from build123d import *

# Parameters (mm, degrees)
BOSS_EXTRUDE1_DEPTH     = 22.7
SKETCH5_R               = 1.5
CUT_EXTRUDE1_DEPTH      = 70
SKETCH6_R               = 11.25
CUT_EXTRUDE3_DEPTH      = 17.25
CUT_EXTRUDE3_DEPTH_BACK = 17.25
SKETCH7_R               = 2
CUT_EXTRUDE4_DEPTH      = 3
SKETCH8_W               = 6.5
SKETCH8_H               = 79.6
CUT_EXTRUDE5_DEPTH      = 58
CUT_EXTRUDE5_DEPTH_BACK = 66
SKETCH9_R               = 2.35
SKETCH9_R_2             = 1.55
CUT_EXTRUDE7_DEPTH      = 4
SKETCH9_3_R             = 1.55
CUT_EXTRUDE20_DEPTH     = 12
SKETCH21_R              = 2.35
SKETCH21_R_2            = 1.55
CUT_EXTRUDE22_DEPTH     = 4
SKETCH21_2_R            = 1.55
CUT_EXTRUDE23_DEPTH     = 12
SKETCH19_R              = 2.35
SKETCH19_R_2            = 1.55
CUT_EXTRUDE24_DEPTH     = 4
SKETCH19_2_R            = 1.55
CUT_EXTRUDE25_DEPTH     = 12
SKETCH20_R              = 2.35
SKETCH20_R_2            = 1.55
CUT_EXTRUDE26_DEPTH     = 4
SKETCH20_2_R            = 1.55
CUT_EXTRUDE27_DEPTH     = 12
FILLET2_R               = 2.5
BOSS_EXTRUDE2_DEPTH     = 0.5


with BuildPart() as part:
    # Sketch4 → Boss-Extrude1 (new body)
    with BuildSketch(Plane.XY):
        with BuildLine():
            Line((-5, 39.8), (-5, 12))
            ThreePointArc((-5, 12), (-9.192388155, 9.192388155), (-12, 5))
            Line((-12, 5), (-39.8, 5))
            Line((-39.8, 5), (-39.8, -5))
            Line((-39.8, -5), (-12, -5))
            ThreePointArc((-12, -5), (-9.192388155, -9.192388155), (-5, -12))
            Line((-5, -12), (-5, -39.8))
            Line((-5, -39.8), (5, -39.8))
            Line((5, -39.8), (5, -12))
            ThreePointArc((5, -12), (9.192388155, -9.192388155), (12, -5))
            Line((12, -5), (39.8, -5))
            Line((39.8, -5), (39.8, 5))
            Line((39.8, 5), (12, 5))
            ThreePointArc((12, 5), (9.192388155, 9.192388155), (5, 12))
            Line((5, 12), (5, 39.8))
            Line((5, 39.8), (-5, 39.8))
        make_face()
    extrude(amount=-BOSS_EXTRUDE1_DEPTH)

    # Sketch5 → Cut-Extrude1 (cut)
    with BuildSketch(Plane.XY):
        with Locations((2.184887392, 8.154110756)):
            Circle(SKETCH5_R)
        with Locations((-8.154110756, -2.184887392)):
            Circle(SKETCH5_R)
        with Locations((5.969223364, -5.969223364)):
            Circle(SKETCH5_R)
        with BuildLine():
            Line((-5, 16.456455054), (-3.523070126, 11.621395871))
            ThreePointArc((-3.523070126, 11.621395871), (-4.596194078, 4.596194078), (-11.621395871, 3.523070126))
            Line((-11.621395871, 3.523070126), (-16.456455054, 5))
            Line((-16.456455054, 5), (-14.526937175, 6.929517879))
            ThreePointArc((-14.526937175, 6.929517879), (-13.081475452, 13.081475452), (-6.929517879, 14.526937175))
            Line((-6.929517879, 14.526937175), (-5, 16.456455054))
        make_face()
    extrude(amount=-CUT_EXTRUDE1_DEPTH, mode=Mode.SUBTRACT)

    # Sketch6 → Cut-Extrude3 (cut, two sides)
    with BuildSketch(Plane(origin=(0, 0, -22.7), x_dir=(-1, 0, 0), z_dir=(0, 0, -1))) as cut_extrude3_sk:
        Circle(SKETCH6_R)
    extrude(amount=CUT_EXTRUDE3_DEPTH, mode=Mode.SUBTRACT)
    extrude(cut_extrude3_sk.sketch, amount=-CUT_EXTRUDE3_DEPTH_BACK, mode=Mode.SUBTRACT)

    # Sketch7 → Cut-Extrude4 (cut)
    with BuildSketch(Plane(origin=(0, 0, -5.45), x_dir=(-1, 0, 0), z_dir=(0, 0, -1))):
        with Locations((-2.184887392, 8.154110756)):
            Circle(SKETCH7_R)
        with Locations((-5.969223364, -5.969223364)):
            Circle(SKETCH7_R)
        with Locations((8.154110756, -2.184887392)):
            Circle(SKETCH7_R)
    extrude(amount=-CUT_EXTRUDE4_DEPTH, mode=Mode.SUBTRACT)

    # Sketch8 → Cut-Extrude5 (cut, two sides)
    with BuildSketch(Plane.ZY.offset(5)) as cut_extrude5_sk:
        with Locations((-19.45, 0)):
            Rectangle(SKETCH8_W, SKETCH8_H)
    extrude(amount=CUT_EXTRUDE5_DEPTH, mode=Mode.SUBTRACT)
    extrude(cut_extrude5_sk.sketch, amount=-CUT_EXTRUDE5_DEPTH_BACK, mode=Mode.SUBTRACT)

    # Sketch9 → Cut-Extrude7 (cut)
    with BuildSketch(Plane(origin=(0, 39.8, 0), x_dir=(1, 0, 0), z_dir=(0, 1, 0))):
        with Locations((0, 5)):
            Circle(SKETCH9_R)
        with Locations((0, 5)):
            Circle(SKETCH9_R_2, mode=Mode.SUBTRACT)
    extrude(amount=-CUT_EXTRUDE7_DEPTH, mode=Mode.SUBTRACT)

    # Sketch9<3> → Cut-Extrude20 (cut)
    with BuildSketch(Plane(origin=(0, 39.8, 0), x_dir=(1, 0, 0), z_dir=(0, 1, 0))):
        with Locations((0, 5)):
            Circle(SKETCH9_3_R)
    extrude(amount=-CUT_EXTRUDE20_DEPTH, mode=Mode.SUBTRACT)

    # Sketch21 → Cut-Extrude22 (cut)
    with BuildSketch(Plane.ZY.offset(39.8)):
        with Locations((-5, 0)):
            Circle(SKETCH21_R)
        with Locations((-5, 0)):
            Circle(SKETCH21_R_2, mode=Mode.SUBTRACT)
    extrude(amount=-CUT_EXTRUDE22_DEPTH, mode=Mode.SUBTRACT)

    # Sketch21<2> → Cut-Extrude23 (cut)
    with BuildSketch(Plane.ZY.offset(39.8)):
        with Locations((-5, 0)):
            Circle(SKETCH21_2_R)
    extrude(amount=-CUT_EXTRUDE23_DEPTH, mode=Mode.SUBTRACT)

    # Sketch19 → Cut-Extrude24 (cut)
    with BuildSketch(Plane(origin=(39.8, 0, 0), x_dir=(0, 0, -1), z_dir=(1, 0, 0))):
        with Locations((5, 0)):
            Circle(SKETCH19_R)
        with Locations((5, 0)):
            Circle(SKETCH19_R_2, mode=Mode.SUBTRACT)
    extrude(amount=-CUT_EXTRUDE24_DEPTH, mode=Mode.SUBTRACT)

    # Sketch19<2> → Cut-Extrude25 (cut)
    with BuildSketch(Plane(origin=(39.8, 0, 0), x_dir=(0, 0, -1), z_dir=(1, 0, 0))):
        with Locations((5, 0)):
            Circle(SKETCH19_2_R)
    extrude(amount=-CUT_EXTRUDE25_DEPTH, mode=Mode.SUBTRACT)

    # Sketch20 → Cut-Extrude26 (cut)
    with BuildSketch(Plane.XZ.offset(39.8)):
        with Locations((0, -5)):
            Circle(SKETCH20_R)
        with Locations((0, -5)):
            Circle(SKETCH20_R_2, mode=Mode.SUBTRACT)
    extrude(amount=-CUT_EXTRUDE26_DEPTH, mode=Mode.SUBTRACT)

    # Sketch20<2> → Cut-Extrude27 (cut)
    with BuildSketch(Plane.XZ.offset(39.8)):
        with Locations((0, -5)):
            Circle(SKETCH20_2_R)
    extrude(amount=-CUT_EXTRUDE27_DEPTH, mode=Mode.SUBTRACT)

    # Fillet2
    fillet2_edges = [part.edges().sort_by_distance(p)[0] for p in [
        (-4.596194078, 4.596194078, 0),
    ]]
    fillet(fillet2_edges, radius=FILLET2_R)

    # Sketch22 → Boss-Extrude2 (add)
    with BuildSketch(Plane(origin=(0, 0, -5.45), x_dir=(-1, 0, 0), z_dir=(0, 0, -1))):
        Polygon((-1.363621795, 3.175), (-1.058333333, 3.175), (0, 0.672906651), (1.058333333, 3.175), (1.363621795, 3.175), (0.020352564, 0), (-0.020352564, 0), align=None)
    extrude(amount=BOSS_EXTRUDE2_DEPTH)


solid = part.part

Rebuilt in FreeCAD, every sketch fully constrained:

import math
import FreeCAD as App
import Part
import Sketcher

V = App.Vector
Q = App.Units.Quantity


def edges_at(feature, points):
    """Names of the edges that pass closest to the given points."""
    edges = feature.Shape.Edges
    near = lambda p: min(range(len(edges)), key=lambda i: edges[i].distToShape(Part.Vertex(*p))[0])
    return sorted({f"Edge{near(p) + 1}" for p in points})


def add_polygon(sketch, points):
    """Adds a closed chain of lines whose ends are joined by coincident constraints."""
    first, n = sketch.GeometryCount, len(points)
    for a, b in zip(points, points[1:] + points[:1]):
        sketch.addGeometry(Part.LineSegment(App.Vector(*a, 0), App.Vector(*b, 0)), False)
    for i in range(n):
        sketch.addConstraint(Sketcher.Constraint("Coincident", first + i, 2, first + (i + 1) % n, 1))

doc = App.newDocument("Part")
params = doc.addObject("Spreadsheet::Sheet", "Params")
for row, (alias, value) in enumerate([
    ("sketch1_radius", "13 mm"),
    ("sketch1_width", "10 mm"),
    ("sketch1_width2", "27.8 mm"),
    ("pad1_length", "22.7 mm"),
    ("sketch2_diameter", "3 mm"),
    ("sketch2_radius", "6 mm"),
    ("pocket1_length", "70 mm"),
    ("sketch3_diameter", "22.5 mm"),
    ("pocket2_length", "17.25 mm"),
    ("pocket2_length2", "17.25 mm"),
    ("sketch4_diameter", "4 mm"),
    ("pocket3_length", "3 mm"),
    ("sketch5_width", "79.6 mm"),
    ("sketch5_height", "6.5 mm"),
    ("sketch6_diameter", "4.7 mm"),
    ("sketch6_diameter2", "3.1 mm"),
    ("pocket5_length", "4 mm"),
    ("sketch7_diameter", "3.1 mm"),
    ("pocket6_length", "12 mm"),
    ("sketch8_diameter", "4.7 mm"),
    ("sketch8_diameter2", "3.1 mm"),
    ("pocket7_length", "4 mm"),
    ("sketch9_diameter", "3.1 mm"),
    ("pocket8_length", "12 mm"),
    ("sketch10_diameter", "4.7 mm"),
    ("sketch10_diameter2", "3.1 mm"),
    ("pocket9_length", "4 mm"),
    ("sketch11_diameter", "3.1 mm"),
    ("pocket10_length", "12 mm"),
    ("sketch12_diameter", "4.7 mm"),
    ("sketch12_diameter2", "3.1 mm"),
    ("pocket11_length", "4 mm"),
    ("sketch13_diameter", "3.1 mm"),
    ("pocket12_length", "12 mm"),
    ("fillet_radius", "2.5 mm"),
    ("pad2_length", "0.5 mm"),
], start=1):
    params.set(f"A{row}", alias)
    params.set(f"B{row}", "=" + value)
    params.setAlias(f"B{row}", alias)

body = doc.addObject("PartDesign::Body", "Body")

sketch1 = body.newObject("Sketcher::SketchObject", "Sketch")
sketch1.AttachmentSupport = (doc.getObject("XY_Plane"), [""])
sketch1.MapMode = "FlatFace"
sketch1.addGeometry([
    Part.LineSegment(V(-5, 39.8, 0), V(-5, 12, 0)),
    Part.ArcOfCircle(Part.Circle(V(0, 0, 0), V(0, 0, 1), 13), math.radians(112.619865), math.radians(157.380135)),
    Part.LineSegment(V(-12, 5, 0), V(-39.8, 5, 0)),
    Part.LineSegment(V(-39.8, 5, 0), V(-39.8, -5, 0)),
    Part.LineSegment(V(-39.8, -5, 0), V(-12, -5, 0)),
    Part.ArcOfCircle(Part.Circle(V(0, 0, 0), V(0, 0, 1), 13), math.radians(-157.380135), math.radians(-112.619865)),
    Part.LineSegment(V(-5, -12, 0), V(-5, -39.8, 0)),
    Part.LineSegment(V(-5, -39.8, 0), V(5, -39.8, 0)),
    Part.LineSegment(V(5, -39.8, 0), V(5, -12, 0)),
    Part.ArcOfCircle(Part.Circle(V(0, 0, 0), V(0, 0, 1), 13), math.radians(-67.380135), math.radians(-22.619865)),
    Part.LineSegment(V(12, -5, 0), V(39.8, -5, 0)),
    Part.LineSegment(V(39.8, -5, 0), V(39.8, 5, 0)),
    Part.LineSegment(V(39.8, 5, 0), V(12, 5, 0)),
    Part.ArcOfCircle(Part.Circle(V(0, 0, 0), V(0, 0, 1), 13), math.radians(22.619865), math.radians(67.380135)),
    Part.LineSegment(V(5, 12, 0), V(5, 39.8, 0)),
    Part.LineSegment(V(5, 39.8, 0), V(-5, 39.8, 0)),
], False)
sketch1.addConstraint([
    Sketcher.Constraint("Coincident", 0, 2, 1, 1),
    Sketcher.Constraint("Coincident", 1, 2, 2, 1),
    Sketcher.Constraint("Coincident", 2, 2, 3, 1),
    Sketcher.Constraint("Coincident", 3, 2, 4, 1),
    Sketcher.Constraint("Coincident", 4, 2, 5, 1),
    Sketcher.Constraint("Coincident", 5, 2, 6, 1),
    Sketcher.Constraint("Coincident", 6, 2, 7, 1),
    Sketcher.Constraint("Coincident", 7, 2, 8, 1),
    Sketcher.Constraint("Coincident", 8, 2, 9, 1),
    Sketcher.Constraint("Coincident", 9, 2, 10, 1),
    Sketcher.Constraint("Coincident", 10, 2, 11, 1),
    Sketcher.Constraint("Coincident", 11, 2, 12, 1),
    Sketcher.Constraint("Coincident", 12, 2, 13, 1),
    Sketcher.Constraint("Coincident", 13, 2, 14, 1),
    Sketcher.Constraint("Coincident", 14, 2, 15, 1),
    Sketcher.Constraint("Coincident", 15, 2, 0, 1),
    Sketcher.Constraint("Vertical", 0),
    Sketcher.Constraint("Horizontal", 2),
    Sketcher.Constraint("Vertical", 3),
    Sketcher.Constraint("Horizontal", 4),
    Sketcher.Constraint("Vertical", 6),
    Sketcher.Constraint("Horizontal", 7),
    Sketcher.Constraint("Vertical", 8),
    Sketcher.Constraint("Horizontal", 10),
    Sketcher.Constraint("Vertical", 11),
    Sketcher.Constraint("Horizontal", 12),
    Sketcher.Constraint("Vertical", 14),
    Sketcher.Constraint("Horizontal", 15),
    Sketcher.Constraint("Coincident", 1, 3, -1, 1),
    Sketcher.Constraint("Coincident", 5, 3, -1, 1),
    Sketcher.Constraint("Coincident", 9, 3, -1, 1),
    Sketcher.Constraint("Coincident", 13, 3, -1, 1),
    Sketcher.Constraint("Equal", 1, 5),
    Sketcher.Constraint("Equal", 5, 9),
    Sketcher.Constraint("Equal", 9, 13),
    Sketcher.Constraint("Symmetric", 2, 2, 10, 2, -1, 1),
    Sketcher.Constraint("Symmetric", 6, 2, 14, 2, -1, 1),
    Sketcher.Constraint("Horizontal", 5, 2, 8, 2),
    Sketcher.Constraint("Horizontal", 4, 2, 9, 2),
    Sketcher.Constraint("Horizontal", 2, 2, 11, 2),
    Sketcher.Constraint("Horizontal", 0, 2, 13, 2),
    Sketcher.Constraint("Equal", 12, 0),
    Sketcher.Constraint("Equal", 15, 3),
    Sketcher.Constraint("Radius", 1, Q("13 mm")),
    Sketcher.Constraint("DistanceX", 7, 1, 7, 2, Q("10 mm")),
    Sketcher.Constraint("DistanceX", 2, 2, 2, 1, Q("27.8 mm")),
])
sketch1.setExpression("Constraints[43]", "Params.sketch1_radius")
sketch1.setExpression("Constraints[44]", "Params.sketch1_width")
sketch1.setExpression("Constraints[45]", "Params.sketch1_width2")
pad1 = body.newObject("PartDesign::Pad", "Pad")
pad1.Profile = sketch1
pad1.setExpression("Length", "Params.pad1_length")
pad1.Reversed = True

sketch2 = body.newObject("Sketcher::SketchObject", "Sketch001")
sketch2.AttachmentSupport = (doc.getObject("XY_Plane"), [""])
sketch2.MapMode = "FlatFace"
sketch2.addGeometry([
    Part.Circle(V(2.184887, 8.154111, 0), V(0, 0, 1), 1.5),
    Part.Circle(V(-8.154111, -2.184887, 0), V(0, 0, 1), 1.5),
    Part.Circle(V(5.969223, -5.969223, 0), V(0, 0, 1), 1.5),
    Part.LineSegment(V(-3.52307, 11.621396, 0), V(-5, 16.456455, 0)),
    Part.LineSegment(V(-5, 16.456455, 0), V(-6.929518, 14.526937, 0)),
    Part.ArcOfCircle(Part.Circle(V(-8.838835, 8.838835, 0), V(0, 0, 1), 6), math.radians(71.444719), math.radians(198.555281)),
    Part.LineSegment(V(-14.526937, 6.929518, 0), V(-16.456455, 5, 0)),
    Part.LineSegment(V(-16.456455, 5, 0), V(-11.621396, 3.52307, 0)),
    Part.ArcOfCircle(Part.Circle(V(-8.838835, 8.838835, 0), V(0, 0, 1), 6), math.radians(-117.630013), math.radians(27.630013)),
], False)
sketch2.addConstraint([
    Sketcher.Constraint("Coincident", 3, 2, 4, 1),
    Sketcher.Constraint("Coincident", 4, 2, 5, 1),
    Sketcher.Constraint("Coincident", 5, 2, 6, 1),
    Sketcher.Constraint("Coincident", 6, 2, 7, 1),
    Sketcher.Constraint("Coincident", 7, 2, 8, 1),
    Sketcher.Constraint("Coincident", 8, 2, 3, 1),
    Sketcher.Constraint("Coincident", 8, 3, 5, 3),
    Sketcher.Constraint("Equal", 0, 1),
    Sketcher.Constraint("Equal", 1, 2),
    Sketcher.Constraint("Equal", 5, 8),
    Sketcher.Constraint("Parallel", 4, 6),
    Sketcher.Constraint("Equal", 4, 6),
    Sketcher.Constraint("Equal", 3, 7),
    Sketcher.Constraint("Diameter", 0, Q("3 mm")),
    Sketcher.Constraint("Radius", 5, Q("6 mm")),
    Sketcher.Constraint("Angle", 4, Q("-135 deg")),
    Sketcher.Constraint("DistanceX", 3, 2, -1, 1, Q("5 mm")),
    Sketcher.Constraint("DistanceY", -1, 1, 6, 2, Q("5 mm")),
    Sketcher.Constraint("DistanceX", 1, 3, 0, 3, Q("10.338998 mm")),
    Sketcher.Constraint("DistanceY", 1, 3, 0, 3, Q("10.338998 mm")),
    Sketcher.Constraint("Distance", 4, Q("2.72875 mm")),
    Sketcher.Constraint("DistanceY", -1, 1, 0, 3, Q("8.154111 mm")),
    Sketcher.Constraint("DistanceX", 1, 3, -1, 1, Q("8.154111 mm")),
    Sketcher.Constraint("DistanceY", -1, 1, 7, 2, Q("3.52307 mm")),
    Sketcher.Constraint("DistanceX", 8, 2, -1, 1, Q("3.52307 mm")),
    Sketcher.Constraint("DistanceX", 5, 3, 2, 3, Q("14.808058 mm")),
    Sketcher.Constraint("DistanceY", 2, 3, 5, 3, Q("14.808058 mm")),
    Sketcher.Constraint("DistanceY", 8, 3, 3, 2, Q("7.61762 mm")),
])
sketch2.setExpression("Constraints[13]", "Params.sketch2_diameter")
sketch2.setExpression("Constraints[14]", "Params.sketch2_radius")
pocket1 = body.newObject("PartDesign::Pocket", "Pocket")
pocket1.Profile = sketch2
pocket1.setExpression("Length", "Params.pocket1_length")

sketch3 = body.newObject("Sketcher::SketchObject", "Sketch002")
sketch3.AttachmentSupport = (doc.getObject("XY_Plane"), [""])
sketch3.MapMode = "FlatFace"
sketch3.AttachmentOffset = App.Placement(V(0, 0, -22.7), App.Rotation())
sketch3.addGeometry(Part.Circle(V(0, 0, 0), V(0, 0, 1), 11.25), False)
sketch3.addConstraint([
    Sketcher.Constraint("Coincident", 0, 3, -1, 1),
    Sketcher.Constraint("Diameter", 0, Q("22.5 mm")),
])
sketch3.setExpression("Constraints[1]", "Params.sketch3_diameter")
pocket2 = body.newObject("PartDesign::Pocket", "Pocket001")
pocket2.Profile = sketch3
pocket2.Type = "TwoLengths"
pocket2.setExpression("Length", "Params.pocket2_length")
pocket2.setExpression("Length2", "Params.pocket2_length2")

sketch4 = body.newObject("Sketcher::SketchObject", "Sketch003")
sketch4.AttachmentSupport = (doc.getObject("XY_Plane"), [""])
sketch4.MapMode = "FlatFace"
sketch4.AttachmentOffset = App.Placement(V(0, 0, -5.45), App.Rotation())
sketch4.addGeometry([
    Part.Circle(V(2.184887, 8.154111, 0), V(0, 0, 1), 2),
    Part.Circle(V(5.969223, -5.969223, 0), V(0, 0, 1), 2),
    Part.Circle(V(-8.154111, -2.184887, 0), V(0, 0, 1), 2),
], False)
sketch4.addConstraint([
    Sketcher.Constraint("Equal", 0, 1),
    Sketcher.Constraint("Equal", 1, 2),
    Sketcher.Constraint("Diameter", 0, Q("4 mm")),
    Sketcher.Constraint("DistanceX", 2, 3, 0, 3, Q("10.338998 mm")),
    Sketcher.Constraint("DistanceY", 2, 3, 0, 3, Q("10.338998 mm")),
    Sketcher.Constraint("DistanceY", -1, 1, 0, 3, Q("8.154111 mm")),
    Sketcher.Constraint("DistanceX", 2, 3, -1, 1, Q("8.154111 mm")),
    Sketcher.Constraint("DistanceX", -1, 1, 1, 3, Q("5.969223 mm")),
    Sketcher.Constraint("DistanceY", 1, 3, -1, 1, Q("5.969223 mm")),
])
sketch4.setExpression("Constraints[2]", "Params.sketch4_diameter")
pocket3 = body.newObject("PartDesign::Pocket", "Pocket002")
pocket3.Profile = sketch4
pocket3.setExpression("Length", "Params.pocket3_length")
pocket3.Reversed = True

sketch5 = body.newObject("Sketcher::SketchObject", "Sketch004")
sketch5.AttachmentSupport = (doc.getObject("YZ_Plane"), [""])
sketch5.MapMode = "FlatFace"
sketch5.AttachmentOffset = App.Placement(V(0, 0, -5), App.Rotation())
add_polygon(sketch5, [(39.8, -22.7), (-39.8, -22.7), (-39.8, -16.2), (39.8, -16.2)])
sketch5.addConstraint([
    Sketcher.Constraint("Horizontal", 0),
    Sketcher.Constraint("Vertical", 1),
    Sketcher.Constraint("Horizontal", 2),
    Sketcher.Constraint("Vertical", 3),
    Sketcher.Constraint("DistanceX", 0, 2, 0, 1, Q("79.6 mm")),
    Sketcher.Constraint("DistanceY", 1, 1, 1, 2, Q("6.5 mm")),
    Sketcher.Constraint("DistanceX", 0, 2, -1, 1, Q("39.8 mm")),
    Sketcher.Constraint("DistanceY", 0, 2, -1, 1, Q("22.7 mm")),
])
sketch5.setExpression("Constraints[8]", "Params.sketch5_width")
sketch5.setExpression("Constraints[9]", "Params.sketch5_height")
pocket4 = body.newObject("PartDesign::Pocket", "Pocket003")
pocket4.Profile = sketch5
pocket4.Type = "ThroughAll"
pocket4.Midplane = True

sketch6 = body.newObject("Sketcher::SketchObject", "Sketch005")
sketch6.AttachmentSupport = (doc.getObject("XZ_Plane"), [""])
sketch6.MapMode = "FlatFace"
sketch6.AttachmentOffset = App.Placement(V(0, 0, -39.8), App.Rotation())
sketch6.addGeometry([
    Part.Circle(V(0, -5, 0), V(0, 0, 1), 2.35),
    Part.Circle(V(0, -5, 0), V(0, 0, 1), 1.55),
], False)
sketch6.addConstraint([
    Sketcher.Constraint("Coincident", 1, 3, 0, 3),
    Sketcher.Constraint("PointOnObject", 0, 3, -2),
    Sketcher.Constraint("Diameter", 0, Q("4.7 mm")),
    Sketcher.Constraint("Diameter", 1, Q("3.1 mm")),
    Sketcher.Constraint("DistanceY", 0, 3, -1, 1, Q("5 mm")),
])
sketch6.setExpression("Constraints[2]", "Params.sketch6_diameter")
sketch6.setExpression("Constraints[3]", "Params.sketch6_diameter2")
pocket5 = body.newObject("PartDesign::Pocket", "Pocket004")
pocket5.Profile = sketch6
pocket5.setExpression("Length", "Params.pocket5_length")
pocket5.Reversed = True

sketch7 = body.newObject("Sketcher::SketchObject", "Sketch006")
sketch7.AttachmentSupport = (doc.getObject("XZ_Plane"), [""])
sketch7.MapMode = "FlatFace"
sketch7.AttachmentOffset = App.Placement(V(0, 0, -39.8), App.Rotation())
sketch7.addGeometry(Part.Circle(V(0, -5, 0), V(0, 0, 1), 1.55), False)
sketch7.addConstraint([
    Sketcher.Constraint("PointOnObject", 0, 3, -2),
    Sketcher.Constraint("Diameter", 0, Q("3.1 mm")),
    Sketcher.Constraint("DistanceY", 0, 3, -1, 1, Q("5 mm")),
])
sketch7.setExpression("Constraints[1]", "Params.sketch7_diameter")
pocket6 = body.newObject("PartDesign::Pocket", "Pocket005")
pocket6.Profile = sketch7
pocket6.setExpression("Length", "Params.pocket6_length")
pocket6.Reversed = True

sketch8 = body.newObject("Sketcher::SketchObject", "Sketch007")
sketch8.AttachmentSupport = (doc.getObject("YZ_Plane"), [""])
sketch8.MapMode = "FlatFace"
sketch8.AttachmentOffset = App.Placement(V(0, 0, -39.8), App.Rotation())
sketch8.addGeometry([
    Part.Circle(V(0, -5, 0), V(0, 0, 1), 2.35),
    Part.Circle(V(0, -5, 0), V(0, 0, 1), 1.55),
], False)
sketch8.addConstraint([
    Sketcher.Constraint("Coincident", 1, 3, 0, 3),
    Sketcher.Constraint("PointOnObject", 0, 3, -2),
    Sketcher.Constraint("Diameter", 0, Q("4.7 mm")),
    Sketcher.Constraint("Diameter", 1, Q("3.1 mm")),
    Sketcher.Constraint("DistanceY", 0, 3, -1, 1, Q("5 mm")),
])
sketch8.setExpression("Constraints[2]", "Params.sketch8_diameter")
sketch8.setExpression("Constraints[3]", "Params.sketch8_diameter2")
pocket7 = body.newObject("PartDesign::Pocket", "Pocket006")
pocket7.Profile = sketch8
pocket7.setExpression("Length", "Params.pocket7_length")
pocket7.Reversed = True

sketch9 = body.newObject("Sketcher::SketchObject", "Sketch008")
sketch9.AttachmentSupport = (doc.getObject("YZ_Plane"), [""])
sketch9.MapMode = "FlatFace"
sketch9.AttachmentOffset = App.Placement(V(0, 0, -39.8), App.Rotation())
sketch9.addGeometry(Part.Circle(V(0, -5, 0), V(0, 0, 1), 1.55), False)
sketch9.addConstraint([
    Sketcher.Constraint("PointOnObject", 0, 3, -2),
    Sketcher.Constraint("Diameter", 0, Q("3.1 mm")),
    Sketcher.Constraint("DistanceY", 0, 3, -1, 1, Q("5 mm")),
])
sketch9.setExpression("Constraints[1]", "Params.sketch9_diameter")
pocket8 = body.newObject("PartDesign::Pocket", "Pocket007")
pocket8.Profile = sketch9
pocket8.setExpression("Length", "Params.pocket8_length")
pocket8.Reversed = True

sketch10 = body.newObject("Sketcher::SketchObject", "Sketch009")
sketch10.AttachmentSupport = (doc.getObject("YZ_Plane"), [""])
sketch10.MapMode = "FlatFace"
sketch10.AttachmentOffset = App.Placement(V(0, 0, 39.8), App.Rotation())
sketch10.addGeometry([
    Part.Circle(V(0, -5, 0), V(0, 0, 1), 2.35),
    Part.Circle(V(0, -5, 0), V(0, 0, 1), 1.55),
], False)
sketch10.addConstraint([
    Sketcher.Constraint("Coincident", 1, 3, 0, 3),
    Sketcher.Constraint("PointOnObject", 0, 3, -2),
    Sketcher.Constraint("Diameter", 0, Q("4.7 mm")),
    Sketcher.Constraint("Diameter", 1, Q("3.1 mm")),
    Sketcher.Constraint("DistanceY", 0, 3, -1, 1, Q("5 mm")),
])
sketch10.setExpression("Constraints[2]", "Params.sketch10_diameter")
sketch10.setExpression("Constraints[3]", "Params.sketch10_diameter2")
pocket9 = body.newObject("PartDesign::Pocket", "Pocket008")
pocket9.Profile = sketch10
pocket9.setExpression("Length", "Params.pocket9_length")

sketch11 = body.newObject("Sketcher::SketchObject", "Sketch010")
sketch11.AttachmentSupport = (doc.getObject("YZ_Plane"), [""])
sketch11.MapMode = "FlatFace"
sketch11.AttachmentOffset = App.Placement(V(0, 0, 39.8), App.Rotation())
sketch11.addGeometry(Part.Circle(V(0, -5, 0), V(0, 0, 1), 1.55), False)
sketch11.addConstraint([
    Sketcher.Constraint("PointOnObject", 0, 3, -2),
    Sketcher.Constraint("Diameter", 0, Q("3.1 mm")),
    Sketcher.Constraint("DistanceY", 0, 3, -1, 1, Q("5 mm")),
])
sketch11.setExpression("Constraints[1]", "Params.sketch11_diameter")
pocket10 = body.newObject("PartDesign::Pocket", "Pocket009")
pocket10.Profile = sketch11
pocket10.setExpression("Length", "Params.pocket10_length")

sketch12 = body.newObject("Sketcher::SketchObject", "Sketch011")
sketch12.AttachmentSupport = (doc.getObject("XZ_Plane"), [""])
sketch12.MapMode = "FlatFace"
sketch12.AttachmentOffset = App.Placement(V(0, 0, 39.8), App.Rotation())
sketch12.addGeometry([
    Part.Circle(V(0, -5, 0), V(0, 0, 1), 2.35),
    Part.Circle(V(0, -5, 0), V(0, 0, 1), 1.55),
], False)
sketch12.addConstraint([
    Sketcher.Constraint("Coincident", 1, 3, 0, 3),
    Sketcher.Constraint("PointOnObject", 0, 3, -2),
    Sketcher.Constraint("Diameter", 0, Q("4.7 mm")),
    Sketcher.Constraint("Diameter", 1, Q("3.1 mm")),
    Sketcher.Constraint("DistanceY", 0, 3, -1, 1, Q("5 mm")),
])
sketch12.setExpression("Constraints[2]", "Params.sketch12_diameter")
sketch12.setExpression("Constraints[3]", "Params.sketch12_diameter2")
pocket11 = body.newObject("PartDesign::Pocket", "Pocket010")
pocket11.Profile = sketch12
pocket11.setExpression("Length", "Params.pocket11_length")

sketch13 = body.newObject("Sketcher::SketchObject", "Sketch012")
sketch13.AttachmentSupport = (doc.getObject("XZ_Plane"), [""])
sketch13.MapMode = "FlatFace"
sketch13.AttachmentOffset = App.Placement(V(0, 0, 39.8), App.Rotation())
sketch13.addGeometry(Part.Circle(V(0, -5, 0), V(0, 0, 1), 1.55), False)
sketch13.addConstraint([
    Sketcher.Constraint("PointOnObject", 0, 3, -2),
    Sketcher.Constraint("Diameter", 0, Q("3.1 mm")),
    Sketcher.Constraint("DistanceY", 0, 3, -1, 1, Q("5 mm")),
])
sketch13.setExpression("Constraints[1]", "Params.sketch13_diameter")
pocket12 = body.newObject("PartDesign::Pocket", "Pocket011")
pocket12.Profile = sketch13
pocket12.setExpression("Length", "Params.pocket12_length")
doc.recompute()

fillet = body.newObject("PartDesign::Fillet", "Fillet")
fillet.Base = (pocket12, edges_at(pocket12, [(-4.596, 4.596, 0)]))
fillet.setExpression("Radius", "Params.fillet_radius")

sketch14 = body.newObject("Sketcher::SketchObject", "Sketch013")
sketch14.AttachmentSupport = (doc.getObject("XY_Plane"), [""])
sketch14.MapMode = "FlatFace"
sketch14.AttachmentOffset = App.Placement(V(0, 0, -5.45), App.Rotation())
add_polygon(sketch14, [(1.058333, 3.175), (1.363622, 3.175), (0.020353, 0), (-0.020353, 0), (-1.363622, 3.175), (-1.058333, 3.175), (0, 0.672907)])
sketch14.addConstraint([
    Sketcher.Constraint("Horizontal", 0),
    Sketcher.Constraint("Horizontal", 2),
    Sketcher.Constraint("Horizontal", 4),
    Sketcher.Constraint("Symmetric", 1, 2, 2, 2, -1, 1),
    Sketcher.Constraint("Symmetric", 0, 2, 3, 2, -2),
    Sketcher.Constraint("PointOnObject", 5, 2, -2),
    Sketcher.Constraint("Equal", 0, 4),
    Sketcher.Constraint("DistanceY", -1, 1, 0, 2, Q("3.175 mm")),
    Sketcher.Constraint("DistanceX", 0, 1, 0, 2, Q("0.305288 mm")),
    Sketcher.Constraint("DistanceX", 2, 2, 2, 1, Q("0.040705 mm")),
    Sketcher.Constraint("DistanceX", -1, 1, 0, 2, Q("1.363622 mm")),
    Sketcher.Constraint("Distance", 5, Q("2.716715 mm")),
])
pad2 = body.newObject("PartDesign::Pad", "Pad001")
pad2.Profile = sketch14
pad2.setExpression("Length", "Params.pad2_length")
pad2.Reversed = True

doc.recompute()
